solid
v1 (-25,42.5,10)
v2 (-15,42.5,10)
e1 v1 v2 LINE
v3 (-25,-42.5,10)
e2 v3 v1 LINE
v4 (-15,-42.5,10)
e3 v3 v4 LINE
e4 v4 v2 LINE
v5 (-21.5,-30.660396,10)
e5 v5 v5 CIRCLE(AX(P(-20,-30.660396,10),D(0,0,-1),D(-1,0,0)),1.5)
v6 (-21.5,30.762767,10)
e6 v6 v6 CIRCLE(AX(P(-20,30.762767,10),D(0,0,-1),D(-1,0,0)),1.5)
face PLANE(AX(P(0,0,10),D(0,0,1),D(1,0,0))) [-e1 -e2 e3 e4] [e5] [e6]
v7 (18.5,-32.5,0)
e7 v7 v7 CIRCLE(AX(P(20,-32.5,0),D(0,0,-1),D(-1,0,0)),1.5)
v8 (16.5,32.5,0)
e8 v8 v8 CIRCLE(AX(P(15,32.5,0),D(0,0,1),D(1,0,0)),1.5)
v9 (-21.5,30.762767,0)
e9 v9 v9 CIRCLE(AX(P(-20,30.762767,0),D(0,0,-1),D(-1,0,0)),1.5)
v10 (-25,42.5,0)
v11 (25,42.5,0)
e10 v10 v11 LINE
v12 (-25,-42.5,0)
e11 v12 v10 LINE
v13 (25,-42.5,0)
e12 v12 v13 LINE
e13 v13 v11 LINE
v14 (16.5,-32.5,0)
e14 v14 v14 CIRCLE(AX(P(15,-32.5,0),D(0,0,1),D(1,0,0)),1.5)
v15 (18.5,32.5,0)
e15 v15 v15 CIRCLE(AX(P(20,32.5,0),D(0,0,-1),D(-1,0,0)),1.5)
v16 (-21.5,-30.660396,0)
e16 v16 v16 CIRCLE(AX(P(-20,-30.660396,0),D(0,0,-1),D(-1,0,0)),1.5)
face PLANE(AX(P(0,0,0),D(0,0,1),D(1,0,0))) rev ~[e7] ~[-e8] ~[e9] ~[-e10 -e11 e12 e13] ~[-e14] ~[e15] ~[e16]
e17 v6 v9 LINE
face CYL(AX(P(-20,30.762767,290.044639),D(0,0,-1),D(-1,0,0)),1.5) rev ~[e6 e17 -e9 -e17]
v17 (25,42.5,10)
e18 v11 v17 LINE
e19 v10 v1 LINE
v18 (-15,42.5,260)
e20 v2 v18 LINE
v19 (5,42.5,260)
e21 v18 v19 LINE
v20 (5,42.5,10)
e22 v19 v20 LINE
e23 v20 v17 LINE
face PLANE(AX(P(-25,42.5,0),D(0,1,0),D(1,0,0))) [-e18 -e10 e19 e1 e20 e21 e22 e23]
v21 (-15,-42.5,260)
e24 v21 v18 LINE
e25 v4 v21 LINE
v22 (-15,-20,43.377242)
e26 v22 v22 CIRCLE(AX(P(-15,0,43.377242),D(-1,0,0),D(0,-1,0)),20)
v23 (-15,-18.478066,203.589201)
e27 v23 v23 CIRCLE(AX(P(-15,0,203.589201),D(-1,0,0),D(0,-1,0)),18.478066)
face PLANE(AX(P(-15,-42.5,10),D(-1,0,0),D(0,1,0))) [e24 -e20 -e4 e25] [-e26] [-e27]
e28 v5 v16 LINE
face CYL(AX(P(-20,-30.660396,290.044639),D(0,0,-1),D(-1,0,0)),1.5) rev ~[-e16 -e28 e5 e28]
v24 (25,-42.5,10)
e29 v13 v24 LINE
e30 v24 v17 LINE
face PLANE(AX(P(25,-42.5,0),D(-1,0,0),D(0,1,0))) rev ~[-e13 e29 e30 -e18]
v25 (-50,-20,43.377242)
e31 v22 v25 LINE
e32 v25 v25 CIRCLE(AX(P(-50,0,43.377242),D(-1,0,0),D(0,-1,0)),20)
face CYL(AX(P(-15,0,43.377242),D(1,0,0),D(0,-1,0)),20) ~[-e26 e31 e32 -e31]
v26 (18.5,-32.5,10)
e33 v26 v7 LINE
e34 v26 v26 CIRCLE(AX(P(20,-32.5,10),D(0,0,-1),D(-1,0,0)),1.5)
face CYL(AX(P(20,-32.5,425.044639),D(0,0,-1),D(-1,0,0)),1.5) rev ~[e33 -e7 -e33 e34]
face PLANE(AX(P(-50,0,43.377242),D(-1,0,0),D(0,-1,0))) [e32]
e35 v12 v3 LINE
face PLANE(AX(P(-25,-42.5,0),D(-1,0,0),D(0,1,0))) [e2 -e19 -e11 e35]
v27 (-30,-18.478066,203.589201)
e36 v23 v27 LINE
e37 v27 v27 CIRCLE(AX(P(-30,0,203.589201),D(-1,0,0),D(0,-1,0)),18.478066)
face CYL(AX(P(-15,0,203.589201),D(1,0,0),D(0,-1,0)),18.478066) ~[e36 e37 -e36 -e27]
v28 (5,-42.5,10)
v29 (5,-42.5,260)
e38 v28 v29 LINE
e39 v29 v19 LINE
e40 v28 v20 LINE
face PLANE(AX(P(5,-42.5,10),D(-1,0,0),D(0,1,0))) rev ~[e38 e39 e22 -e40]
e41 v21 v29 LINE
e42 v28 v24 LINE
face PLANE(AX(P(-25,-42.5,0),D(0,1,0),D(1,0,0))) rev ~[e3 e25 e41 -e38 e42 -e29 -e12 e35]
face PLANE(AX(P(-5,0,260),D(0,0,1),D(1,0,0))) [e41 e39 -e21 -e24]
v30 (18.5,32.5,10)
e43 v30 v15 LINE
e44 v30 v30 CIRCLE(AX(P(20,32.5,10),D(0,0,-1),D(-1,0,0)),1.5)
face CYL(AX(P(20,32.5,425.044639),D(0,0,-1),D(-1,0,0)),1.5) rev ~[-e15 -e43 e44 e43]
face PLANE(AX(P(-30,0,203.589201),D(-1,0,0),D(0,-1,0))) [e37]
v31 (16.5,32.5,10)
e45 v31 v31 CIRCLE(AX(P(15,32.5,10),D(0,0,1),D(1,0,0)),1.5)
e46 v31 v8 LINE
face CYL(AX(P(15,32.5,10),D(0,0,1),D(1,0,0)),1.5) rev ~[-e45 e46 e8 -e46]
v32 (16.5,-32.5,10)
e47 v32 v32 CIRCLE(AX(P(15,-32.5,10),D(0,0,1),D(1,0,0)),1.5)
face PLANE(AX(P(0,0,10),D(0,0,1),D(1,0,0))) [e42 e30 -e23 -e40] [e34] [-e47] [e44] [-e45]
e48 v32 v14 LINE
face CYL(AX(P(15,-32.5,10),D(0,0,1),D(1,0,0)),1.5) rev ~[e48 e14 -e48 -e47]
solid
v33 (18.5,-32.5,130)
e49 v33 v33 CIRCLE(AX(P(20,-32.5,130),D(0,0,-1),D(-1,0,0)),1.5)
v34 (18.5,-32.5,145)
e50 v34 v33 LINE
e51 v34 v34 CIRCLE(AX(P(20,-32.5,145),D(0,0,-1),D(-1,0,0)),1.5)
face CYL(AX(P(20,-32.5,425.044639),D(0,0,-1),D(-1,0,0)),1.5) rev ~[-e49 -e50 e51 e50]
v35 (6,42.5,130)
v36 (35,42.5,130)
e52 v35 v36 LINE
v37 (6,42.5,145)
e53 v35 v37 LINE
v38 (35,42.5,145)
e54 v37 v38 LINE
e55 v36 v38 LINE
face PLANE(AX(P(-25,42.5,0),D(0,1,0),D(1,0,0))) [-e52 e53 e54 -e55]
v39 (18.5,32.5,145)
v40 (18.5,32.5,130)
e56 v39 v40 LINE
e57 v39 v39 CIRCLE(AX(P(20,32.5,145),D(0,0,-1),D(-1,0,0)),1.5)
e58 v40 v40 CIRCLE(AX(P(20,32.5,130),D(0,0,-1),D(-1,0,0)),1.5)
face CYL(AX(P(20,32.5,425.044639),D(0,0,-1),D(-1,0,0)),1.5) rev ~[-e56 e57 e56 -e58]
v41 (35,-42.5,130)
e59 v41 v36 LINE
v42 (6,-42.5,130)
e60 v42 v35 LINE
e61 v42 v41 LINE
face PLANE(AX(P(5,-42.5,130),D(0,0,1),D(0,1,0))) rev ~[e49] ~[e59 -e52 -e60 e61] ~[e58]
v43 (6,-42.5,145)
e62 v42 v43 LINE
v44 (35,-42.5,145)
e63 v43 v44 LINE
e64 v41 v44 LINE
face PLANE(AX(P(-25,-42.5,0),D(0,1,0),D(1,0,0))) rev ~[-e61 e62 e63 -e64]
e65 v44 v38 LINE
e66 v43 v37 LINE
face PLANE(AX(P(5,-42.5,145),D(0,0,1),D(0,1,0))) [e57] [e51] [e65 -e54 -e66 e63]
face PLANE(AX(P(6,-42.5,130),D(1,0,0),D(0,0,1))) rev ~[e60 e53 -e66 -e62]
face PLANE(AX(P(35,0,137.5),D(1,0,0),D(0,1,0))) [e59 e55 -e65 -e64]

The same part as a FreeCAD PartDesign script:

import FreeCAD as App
import Part
import Sketcher
Q = App.Units.Quantity

doc = App.newDocument("Part")
body = doc.addObject("PartDesign::Body", "Body")
body.AllowCompound = True

sketch1 = body.newObject("Sketcher::SketchObject", "Sketch")
sketch1.AttachmentSupport = (doc.getObject("XY_Plane"), [""])
sketch1.MapMode = "FlatFace"
sketch1.addGeometry(Part.LineSegment(App.Vector(-25, 42, 0), App.Vector(-25, -42, 0)), False)
sketch1.addGeometry(Part.LineSegment(App.Vector(-25, -42, 0), App.Vector(25, -42, 0)), False)
sketch1.addGeometry(Part.LineSegment(App.Vector(25, -42, 0), App.Vector(25, 42, 0)), False)
sketch1.addGeometry(Part.LineSegment(App.Vector(25, 42, 0), App.Vector(-25, 42, 0)), False)
sketch1.addConstraint(Sketcher.Constraint("Coincident", 0, 2, 1, 1))
sketch1.addConstraint(Sketcher.Constraint("Coincident", 1, 2, 2, 1))
sketch1.addConstraint(Sketcher.Constraint("Coincident", 2, 2, 3, 1))
sketch1.addConstraint(Sketcher.Constraint("Coincident", 3, 2, 0, 1))
sketch1.addConstraint(Sketcher.Constraint("Vertical", 0))
sketch1.addConstraint(Sketcher.Constraint("Horizontal", 1))
sketch1.addConstraint(Sketcher.Constraint("Vertical", 2))
sketch1.addConstraint(Sketcher.Constraint("Horizontal", 3))
sketch1.addConstraint(Sketcher.Constraint("Symmetric", 0, 2, 2, 2, -1, 1))
sketch1.addConstraint(Sketcher.Constraint("DistanceX", 1, 1, 1, 2, Q("50 mm")))
sketch1.addConstraint(Sketcher.Constraint("DistanceY", 0, 2, 0, 1, Q("85 mm")))
pad1 = body.newObject("PartDesign::Pad", "Pad")
pad1.Profile = sketch1
pad1.Length = 10

sketch2 = body.newObject("Sketcher::SketchObject", "Sketch001")
sketch2.AttachmentSupport = (doc.getObject("XY_Plane"), [""])
sketch2.MapMode = "FlatFace"
sketch2.AttachmentOffset = App.Placement(App.Vector(0, 0, 10), App.Rotation())
sketch2.addGeometry(Part.LineSegment(App.Vector(-15, 42, 0), App.Vector(-15, -42, 0)), False)
sketch2.addGeometry(Part.LineSegment(App.Vector(-15, -42, 0), App.Vector(5, -42, 0)), False)
sketch2.addGeometry(Part.LineSegment(App.Vector(5, -42, 0), App.Vector(5, 42, 0)), False)
sketch2.addGeometry(Part.LineSegment(App.Vector(5, 42, 0), App.Vector(-15, 42, 0)), False)
sketch2.addConstraint(Sketcher.Constraint("Coincident", 0, 2, 1, 1))
sketch2.addConstraint(Sketcher.Constraint("Coincident", 1, 2, 2, 1))
sketch2.addConstraint(Sketcher.Constraint("Coincident", 2, 2, 3, 1))
sketch2.addConstraint(Sketcher.Constraint("Coincident", 3, 2, 0, 1))
sketch2.addConstraint(Sketcher.Constraint("Vertical", 0))
sketch2.addConstraint(Sketcher.Constraint("Horizontal", 1))
sketch2.addConstraint(Sketcher.Constraint("Vertical", 2))
sketch2.addConstraint(Sketcher.Constraint("Horizontal", 3))
sketch2.addConstraint(Sketcher.Constraint("DistanceX", 1, 1, 1, 2, Q("20 mm")))
sketch2.addConstraint(Sketcher.Constraint("DistanceY", 0, 2, 0, 1, Q("85 mm")))
sketch2.addConstraint(Sketcher.Constraint("DistanceX", 0, 2, -1, 1, Q("15 mm")))
sketch2.addConstraint(Sketcher.Constraint("DistanceY", 0, 2, -1, 1, Q("42.5 mm")))
pad2 = body.newObject("PartDesign::Pad", "Pad001")
pad2.Profile = sketch2
pad2.Length = 250

sketch3 = body.newObject("Sketcher::SketchObject", "Sketch002")
sketch3.AttachmentSupport = (doc.getObject("YZ_Plane"), [""])
sketch3.MapMode = "FlatFace"
sketch3.AttachmentOffset = App.Placement(App.Vector(0, 0, 5), App.Rotation())
sketch3.addGeometry(Part.LineSegment(App.Vector(-42, 145, 0), App.Vector(-42, 130, 0)), False)
sketch3.addGeometry(Part.LineSegment(App.Vector(-42, 130, 0), App.Vector(42, 130, 0)), False)
sketch3.addGeometry(Part.LineSegment(App.Vector(42, 130, 0), App.Vector(42, 145, 0)), False)
sketch3.addGeometry(Part.LineSegment(App.Vector(42, 145, 0), App.Vector(-42, 145, 0)), False)
sketch3.addConstraint(Sketcher.Constraint("Coincident", 0, 2, 1, 1))
sketch3.addConstraint(Sketcher.Constraint("Coincident", 1, 2, 2, 1))
sketch3.addConstraint(Sketcher.Constraint("Coincident", 2, 2, 3, 1))
sketch3.addConstraint(Sketcher.Constraint("Coincident", 3, 2, 0, 1))
sketch3.addConstraint(Sketcher.Constraint("Vertical", 0))
sketch3.addConstraint(Sketcher.Constraint("Horizontal", 1))
sketch3.addConstraint(Sketcher.Constraint("Vertical", 2))
sketch3.addConstraint(Sketcher.Constraint("Horizontal", 3))
sketch3.addConstraint(Sketcher.Constraint("DistanceX", 1, 1, 1, 2, Q("85 mm")))
sketch3.addConstraint(Sketcher.Constraint("DistanceY", 0, 2, 0, 1, Q("15 mm")))
sketch3.addConstraint(Sketcher.Constraint("DistanceY", -1, 1, 0, 2, Q("130 mm")))
sketch3.addConstraint(Sketcher.Constraint("DistanceX", 0, 2, -1, 1, Q("42.5 mm")))
pad3 = body.newObject("PartDesign::Pad", "Pad002")
pad3.Profile = sketch3
pad3.Length = 30

sketch4 = body.newObject("Sketcher::SketchObject", "Sketch003")
sketch4.AttachmentSupport = (doc.getObject("XY_Plane"), [""])
sketch4.MapMode = "FlatFace"
sketch4.AttachmentOffset = App.Placement(App.Vector(0, 0, 145), App.Rotation())
sketch4.addGeometry(Part.Circle(App.Vector(20, 32.5, 0), App.Vector(0, 0, 1), 1.5), False)
sketch4.addGeometry(Part.Circle(App.Vector(20, -32.5, 0), App.Vector(0, 0, 1), 1.5), False)
sketch4.addConstraint(Sketcher.Constraint("Equal", 0, 1))
sketch4.addConstraint(Sketcher.Constraint("Symmetric", 0, 3, 1, 3, -1))
sketch4.addConstraint(Sketcher.Constraint("Diameter", 0, Q("3 mm")))
sketch4.addConstraint(Sketcher.Constraint("DistanceX", -1, 1, 0, 3, Q("20 mm")))
sketch4.addConstraint(Sketcher.Constraint("DistanceY", 1, 3, 0, 3, Q("65 mm")))
doc.recompute()
hole = body.newObject("PartDesign::Hole", "Hole")
hole.Profile = sketch4
hole.ThreadType = "None"
hole.Diameter = 3
hole.DepthType = "ThroughAll"

sketch5 = body.newObject("Sketcher::SketchObject", "Sketch004")
sketch5.AttachmentSupport = (doc.getObject("XY_Plane"), [""])
sketch5.MapMode = "FlatFace"
sketch5.AttachmentOffset = App.Placement(App.Vector(0, 0, 10), App.Rotation())
sketch5.addGeometry(Part.Circle(App.Vector(-20, 30.8, 0), App.Vector(0, 0, 1), 1.5), False)
sketch5.addGeometry(Part.Circle(App.Vector(-20, -30.7, 0), App.Vector(0, 0, 1), 1.5), False)
sketch5.addConstraint(Sketcher.Constraint("Equal", 0, 1))
sketch5.addConstraint(Sketcher.Constraint("Vertical", 0, 3, 1, 3))
sketch5.addConstraint(Sketcher.Constraint("Diameter", 0, Q("3 mm")))
sketch5.addConstraint(Sketcher.Constraint("DistanceX", 0, 3, -1, 1, Q("20 mm")))
sketch5.addConstraint(Sketcher.Constraint("DistanceY", -1, 1, 0, 3, Q("30.762767 mm")))
sketch5.addConstraint(Sketcher.Constraint("DistanceY", 1, 3, -1, 1, Q("30.660396 mm")))
doc.recompute()
hole2 = body.newObject("PartDesign::Hole", "Hole001")
hole2.Profile = sketch5
hole2.ThreadType = "None"
hole2.Diameter = 3
hole2.DepthType = "ThroughAll"

sketch6 = body.newObject("Sketcher::SketchObject", "Sketch005")
sketch6.AttachmentSupport = (doc.getObject("XY_Plane"), [""])
sketch6.MapMode = "FlatFace"
sketch6.AttachmentOffset = App.Placement(App.Vector(0, 0, 10), App.Rotation())
sketch6.addGeometry(Part.Circle(App.Vector(15, 32.5, 0), App.Vector(0, 0, 1), 1.5), False)
sketch6.addGeometry(Part.Circle(App.Vector(15, -32.5, 0), App.Vector(0, 0, 1), 1.5), False)
sketch6.addConstraint(Sketcher.Constraint("Equal", 0, 1))
sketch6.addConstraint(Sketcher.Constraint("Symmetric", 0, 3, 1, 3, -1))
sketch6.addConstraint(Sketcher.Constraint("Diameter", 0, Q("3 mm")))
sketch6.addConstraint(Sketcher.Constraint("DistanceX", -1, 1, 0, 3, Q("15 mm")))
sketch6.addConstraint(Sketcher.Constraint("DistanceY", 1, 3, 0, 3, Q("65 mm")))
pocket1 = body.newObject("PartDesign::Pocket", "Pocket")
pocket1.Profile = sketch6
pocket1.Type = "ThroughAll"

sketch7 = body.newObject("Sketcher::SketchObject", "Sketch006")
sketch7.AttachmentSupport = (doc.getObject("YZ_Plane"), [""])
sketch7.MapMode = "FlatFace"
sketch7.AttachmentOffset = App.Placement(App.Vector(0, 0, -15), App.Rotation())
sketch7.addGeometry(Part.Circle(App.Vector(0, 43, 0), App.Vector(0, 0, 1), 20), False)
sketch7.addConstraint(Sketcher.Constraint("PointOnObject", 0, 3, -2))
sketch7.addConstraint(Sketcher.Constraint("Diameter", 0, Q("40 mm")))
sketch7.addConstraint(Sketcher.Constraint("DistanceY", -1, 1, 0, 3, Q("43.377242 mm")))
pad4 = body.newObject("PartDesign::Pad", "Pad003")
pad4.Profile = sketch7
pad4.Length = 35
pad4.Reversed = True

sketch8 = body.newObject("Sketcher::SketchObject", "Sketch007")
sketch8.AttachmentSupport = (doc.getObject("YZ_Plane"), [""])
sketch8.MapMode = "FlatFace"
sketch8.AttachmentOffset = App.Placement(App.Vector(0, 0, -15), App.Rotation())
sketch8.addGeometry(Part.Circle(App.Vector(0, 204, 0), App.Vector(0, 0, 1), 18), False)
sketch8.addConstraint(Sketcher.Constraint("PointOnObject", 0, 3, -2))
sketch8.addConstraint(Sketcher.Constraint("Diameter", 0, Q("36.956132 mm")))
sketch8.addConstraint(Sketcher.Constraint("DistanceY", -1, 1, 0, 3, Q("203.589201 mm")))
pad5 = body.newObject("PartDesign::Pad", "Pad004")
pad5.Profile = sketch8
pad5.Length = 15
pad5.Reversed = True

sketch9 = body.newObject("Sketcher::SketchObject", "Sketch008")
sketch9.AttachmentSupport = (doc.getObject("XZ_Plane"), [""])
sketch9.MapMode = "FlatFace"
sketch9.AttachmentOffset = App.Placement(App.Vector(0, 0, 42.5), App.Rotation())
sketch9.addGeometry(Part.LineSegment(App.Vector(5, 145, 0), App.Vector(5, 130, 0)), False)
sketch9.addGeometry(Part.LineSegment(App.Vector(5, 130, 0), App.Vector(6, 130, 0)), False)
sketch9.addGeometry(Part.LineSegment(App.Vector(6, 130, 0), App.Vector(6, 145, 0)), False)
sketch9.addGeometry(Part.LineSegment(App.Vector(6, 145, 0), App.Vector(5, 145, 0)), False)
sketch9.addConstraint(Sketcher.Constraint("Coincident", 0, 2, 1, 1))
sketch9.addConstraint(Sketcher.Constraint("Coincident", 1, 2, 2, 1))
sketch9.addConstraint(Sketcher.Constraint("Coincident", 2, 2, 3, 1))
sketch9.addConstraint(Sketcher.Constraint("Coincident", 3, 2, 0, 1))
sketch9.addConstraint(Sketcher.Constraint("Vertical", 0))
sketch9.addConstraint(Sketcher.Constraint("Horizontal", 1))
sketch9.addConstraint(Sketcher.Constraint("Vertical", 2))
sketch9.addConstraint(Sketcher.Constraint("Horizontal", 3))
sketch9.addConstraint(Sketcher.Constraint("DistanceX", 1, 1, 1, 2, Q("1 mm")))
sketch9.addConstraint(Sketcher.Constraint("DistanceY", 0, 2, 0, 1, Q("15 mm")))
sketch9.addConstraint(Sketcher.Constraint("DistanceX", -1, 1, 0, 2, Q("5 mm")))
sketch9.addConstraint(Sketcher.Constraint("DistanceY", -1, 1, 0, 2, Q("130 mm")))
pocket2 = body.newObject("PartDesign::Pocket", "Pocket001")
pocket2.Profile = sketch9
pocket2.Type = "ThroughAll"

doc.recompute()
